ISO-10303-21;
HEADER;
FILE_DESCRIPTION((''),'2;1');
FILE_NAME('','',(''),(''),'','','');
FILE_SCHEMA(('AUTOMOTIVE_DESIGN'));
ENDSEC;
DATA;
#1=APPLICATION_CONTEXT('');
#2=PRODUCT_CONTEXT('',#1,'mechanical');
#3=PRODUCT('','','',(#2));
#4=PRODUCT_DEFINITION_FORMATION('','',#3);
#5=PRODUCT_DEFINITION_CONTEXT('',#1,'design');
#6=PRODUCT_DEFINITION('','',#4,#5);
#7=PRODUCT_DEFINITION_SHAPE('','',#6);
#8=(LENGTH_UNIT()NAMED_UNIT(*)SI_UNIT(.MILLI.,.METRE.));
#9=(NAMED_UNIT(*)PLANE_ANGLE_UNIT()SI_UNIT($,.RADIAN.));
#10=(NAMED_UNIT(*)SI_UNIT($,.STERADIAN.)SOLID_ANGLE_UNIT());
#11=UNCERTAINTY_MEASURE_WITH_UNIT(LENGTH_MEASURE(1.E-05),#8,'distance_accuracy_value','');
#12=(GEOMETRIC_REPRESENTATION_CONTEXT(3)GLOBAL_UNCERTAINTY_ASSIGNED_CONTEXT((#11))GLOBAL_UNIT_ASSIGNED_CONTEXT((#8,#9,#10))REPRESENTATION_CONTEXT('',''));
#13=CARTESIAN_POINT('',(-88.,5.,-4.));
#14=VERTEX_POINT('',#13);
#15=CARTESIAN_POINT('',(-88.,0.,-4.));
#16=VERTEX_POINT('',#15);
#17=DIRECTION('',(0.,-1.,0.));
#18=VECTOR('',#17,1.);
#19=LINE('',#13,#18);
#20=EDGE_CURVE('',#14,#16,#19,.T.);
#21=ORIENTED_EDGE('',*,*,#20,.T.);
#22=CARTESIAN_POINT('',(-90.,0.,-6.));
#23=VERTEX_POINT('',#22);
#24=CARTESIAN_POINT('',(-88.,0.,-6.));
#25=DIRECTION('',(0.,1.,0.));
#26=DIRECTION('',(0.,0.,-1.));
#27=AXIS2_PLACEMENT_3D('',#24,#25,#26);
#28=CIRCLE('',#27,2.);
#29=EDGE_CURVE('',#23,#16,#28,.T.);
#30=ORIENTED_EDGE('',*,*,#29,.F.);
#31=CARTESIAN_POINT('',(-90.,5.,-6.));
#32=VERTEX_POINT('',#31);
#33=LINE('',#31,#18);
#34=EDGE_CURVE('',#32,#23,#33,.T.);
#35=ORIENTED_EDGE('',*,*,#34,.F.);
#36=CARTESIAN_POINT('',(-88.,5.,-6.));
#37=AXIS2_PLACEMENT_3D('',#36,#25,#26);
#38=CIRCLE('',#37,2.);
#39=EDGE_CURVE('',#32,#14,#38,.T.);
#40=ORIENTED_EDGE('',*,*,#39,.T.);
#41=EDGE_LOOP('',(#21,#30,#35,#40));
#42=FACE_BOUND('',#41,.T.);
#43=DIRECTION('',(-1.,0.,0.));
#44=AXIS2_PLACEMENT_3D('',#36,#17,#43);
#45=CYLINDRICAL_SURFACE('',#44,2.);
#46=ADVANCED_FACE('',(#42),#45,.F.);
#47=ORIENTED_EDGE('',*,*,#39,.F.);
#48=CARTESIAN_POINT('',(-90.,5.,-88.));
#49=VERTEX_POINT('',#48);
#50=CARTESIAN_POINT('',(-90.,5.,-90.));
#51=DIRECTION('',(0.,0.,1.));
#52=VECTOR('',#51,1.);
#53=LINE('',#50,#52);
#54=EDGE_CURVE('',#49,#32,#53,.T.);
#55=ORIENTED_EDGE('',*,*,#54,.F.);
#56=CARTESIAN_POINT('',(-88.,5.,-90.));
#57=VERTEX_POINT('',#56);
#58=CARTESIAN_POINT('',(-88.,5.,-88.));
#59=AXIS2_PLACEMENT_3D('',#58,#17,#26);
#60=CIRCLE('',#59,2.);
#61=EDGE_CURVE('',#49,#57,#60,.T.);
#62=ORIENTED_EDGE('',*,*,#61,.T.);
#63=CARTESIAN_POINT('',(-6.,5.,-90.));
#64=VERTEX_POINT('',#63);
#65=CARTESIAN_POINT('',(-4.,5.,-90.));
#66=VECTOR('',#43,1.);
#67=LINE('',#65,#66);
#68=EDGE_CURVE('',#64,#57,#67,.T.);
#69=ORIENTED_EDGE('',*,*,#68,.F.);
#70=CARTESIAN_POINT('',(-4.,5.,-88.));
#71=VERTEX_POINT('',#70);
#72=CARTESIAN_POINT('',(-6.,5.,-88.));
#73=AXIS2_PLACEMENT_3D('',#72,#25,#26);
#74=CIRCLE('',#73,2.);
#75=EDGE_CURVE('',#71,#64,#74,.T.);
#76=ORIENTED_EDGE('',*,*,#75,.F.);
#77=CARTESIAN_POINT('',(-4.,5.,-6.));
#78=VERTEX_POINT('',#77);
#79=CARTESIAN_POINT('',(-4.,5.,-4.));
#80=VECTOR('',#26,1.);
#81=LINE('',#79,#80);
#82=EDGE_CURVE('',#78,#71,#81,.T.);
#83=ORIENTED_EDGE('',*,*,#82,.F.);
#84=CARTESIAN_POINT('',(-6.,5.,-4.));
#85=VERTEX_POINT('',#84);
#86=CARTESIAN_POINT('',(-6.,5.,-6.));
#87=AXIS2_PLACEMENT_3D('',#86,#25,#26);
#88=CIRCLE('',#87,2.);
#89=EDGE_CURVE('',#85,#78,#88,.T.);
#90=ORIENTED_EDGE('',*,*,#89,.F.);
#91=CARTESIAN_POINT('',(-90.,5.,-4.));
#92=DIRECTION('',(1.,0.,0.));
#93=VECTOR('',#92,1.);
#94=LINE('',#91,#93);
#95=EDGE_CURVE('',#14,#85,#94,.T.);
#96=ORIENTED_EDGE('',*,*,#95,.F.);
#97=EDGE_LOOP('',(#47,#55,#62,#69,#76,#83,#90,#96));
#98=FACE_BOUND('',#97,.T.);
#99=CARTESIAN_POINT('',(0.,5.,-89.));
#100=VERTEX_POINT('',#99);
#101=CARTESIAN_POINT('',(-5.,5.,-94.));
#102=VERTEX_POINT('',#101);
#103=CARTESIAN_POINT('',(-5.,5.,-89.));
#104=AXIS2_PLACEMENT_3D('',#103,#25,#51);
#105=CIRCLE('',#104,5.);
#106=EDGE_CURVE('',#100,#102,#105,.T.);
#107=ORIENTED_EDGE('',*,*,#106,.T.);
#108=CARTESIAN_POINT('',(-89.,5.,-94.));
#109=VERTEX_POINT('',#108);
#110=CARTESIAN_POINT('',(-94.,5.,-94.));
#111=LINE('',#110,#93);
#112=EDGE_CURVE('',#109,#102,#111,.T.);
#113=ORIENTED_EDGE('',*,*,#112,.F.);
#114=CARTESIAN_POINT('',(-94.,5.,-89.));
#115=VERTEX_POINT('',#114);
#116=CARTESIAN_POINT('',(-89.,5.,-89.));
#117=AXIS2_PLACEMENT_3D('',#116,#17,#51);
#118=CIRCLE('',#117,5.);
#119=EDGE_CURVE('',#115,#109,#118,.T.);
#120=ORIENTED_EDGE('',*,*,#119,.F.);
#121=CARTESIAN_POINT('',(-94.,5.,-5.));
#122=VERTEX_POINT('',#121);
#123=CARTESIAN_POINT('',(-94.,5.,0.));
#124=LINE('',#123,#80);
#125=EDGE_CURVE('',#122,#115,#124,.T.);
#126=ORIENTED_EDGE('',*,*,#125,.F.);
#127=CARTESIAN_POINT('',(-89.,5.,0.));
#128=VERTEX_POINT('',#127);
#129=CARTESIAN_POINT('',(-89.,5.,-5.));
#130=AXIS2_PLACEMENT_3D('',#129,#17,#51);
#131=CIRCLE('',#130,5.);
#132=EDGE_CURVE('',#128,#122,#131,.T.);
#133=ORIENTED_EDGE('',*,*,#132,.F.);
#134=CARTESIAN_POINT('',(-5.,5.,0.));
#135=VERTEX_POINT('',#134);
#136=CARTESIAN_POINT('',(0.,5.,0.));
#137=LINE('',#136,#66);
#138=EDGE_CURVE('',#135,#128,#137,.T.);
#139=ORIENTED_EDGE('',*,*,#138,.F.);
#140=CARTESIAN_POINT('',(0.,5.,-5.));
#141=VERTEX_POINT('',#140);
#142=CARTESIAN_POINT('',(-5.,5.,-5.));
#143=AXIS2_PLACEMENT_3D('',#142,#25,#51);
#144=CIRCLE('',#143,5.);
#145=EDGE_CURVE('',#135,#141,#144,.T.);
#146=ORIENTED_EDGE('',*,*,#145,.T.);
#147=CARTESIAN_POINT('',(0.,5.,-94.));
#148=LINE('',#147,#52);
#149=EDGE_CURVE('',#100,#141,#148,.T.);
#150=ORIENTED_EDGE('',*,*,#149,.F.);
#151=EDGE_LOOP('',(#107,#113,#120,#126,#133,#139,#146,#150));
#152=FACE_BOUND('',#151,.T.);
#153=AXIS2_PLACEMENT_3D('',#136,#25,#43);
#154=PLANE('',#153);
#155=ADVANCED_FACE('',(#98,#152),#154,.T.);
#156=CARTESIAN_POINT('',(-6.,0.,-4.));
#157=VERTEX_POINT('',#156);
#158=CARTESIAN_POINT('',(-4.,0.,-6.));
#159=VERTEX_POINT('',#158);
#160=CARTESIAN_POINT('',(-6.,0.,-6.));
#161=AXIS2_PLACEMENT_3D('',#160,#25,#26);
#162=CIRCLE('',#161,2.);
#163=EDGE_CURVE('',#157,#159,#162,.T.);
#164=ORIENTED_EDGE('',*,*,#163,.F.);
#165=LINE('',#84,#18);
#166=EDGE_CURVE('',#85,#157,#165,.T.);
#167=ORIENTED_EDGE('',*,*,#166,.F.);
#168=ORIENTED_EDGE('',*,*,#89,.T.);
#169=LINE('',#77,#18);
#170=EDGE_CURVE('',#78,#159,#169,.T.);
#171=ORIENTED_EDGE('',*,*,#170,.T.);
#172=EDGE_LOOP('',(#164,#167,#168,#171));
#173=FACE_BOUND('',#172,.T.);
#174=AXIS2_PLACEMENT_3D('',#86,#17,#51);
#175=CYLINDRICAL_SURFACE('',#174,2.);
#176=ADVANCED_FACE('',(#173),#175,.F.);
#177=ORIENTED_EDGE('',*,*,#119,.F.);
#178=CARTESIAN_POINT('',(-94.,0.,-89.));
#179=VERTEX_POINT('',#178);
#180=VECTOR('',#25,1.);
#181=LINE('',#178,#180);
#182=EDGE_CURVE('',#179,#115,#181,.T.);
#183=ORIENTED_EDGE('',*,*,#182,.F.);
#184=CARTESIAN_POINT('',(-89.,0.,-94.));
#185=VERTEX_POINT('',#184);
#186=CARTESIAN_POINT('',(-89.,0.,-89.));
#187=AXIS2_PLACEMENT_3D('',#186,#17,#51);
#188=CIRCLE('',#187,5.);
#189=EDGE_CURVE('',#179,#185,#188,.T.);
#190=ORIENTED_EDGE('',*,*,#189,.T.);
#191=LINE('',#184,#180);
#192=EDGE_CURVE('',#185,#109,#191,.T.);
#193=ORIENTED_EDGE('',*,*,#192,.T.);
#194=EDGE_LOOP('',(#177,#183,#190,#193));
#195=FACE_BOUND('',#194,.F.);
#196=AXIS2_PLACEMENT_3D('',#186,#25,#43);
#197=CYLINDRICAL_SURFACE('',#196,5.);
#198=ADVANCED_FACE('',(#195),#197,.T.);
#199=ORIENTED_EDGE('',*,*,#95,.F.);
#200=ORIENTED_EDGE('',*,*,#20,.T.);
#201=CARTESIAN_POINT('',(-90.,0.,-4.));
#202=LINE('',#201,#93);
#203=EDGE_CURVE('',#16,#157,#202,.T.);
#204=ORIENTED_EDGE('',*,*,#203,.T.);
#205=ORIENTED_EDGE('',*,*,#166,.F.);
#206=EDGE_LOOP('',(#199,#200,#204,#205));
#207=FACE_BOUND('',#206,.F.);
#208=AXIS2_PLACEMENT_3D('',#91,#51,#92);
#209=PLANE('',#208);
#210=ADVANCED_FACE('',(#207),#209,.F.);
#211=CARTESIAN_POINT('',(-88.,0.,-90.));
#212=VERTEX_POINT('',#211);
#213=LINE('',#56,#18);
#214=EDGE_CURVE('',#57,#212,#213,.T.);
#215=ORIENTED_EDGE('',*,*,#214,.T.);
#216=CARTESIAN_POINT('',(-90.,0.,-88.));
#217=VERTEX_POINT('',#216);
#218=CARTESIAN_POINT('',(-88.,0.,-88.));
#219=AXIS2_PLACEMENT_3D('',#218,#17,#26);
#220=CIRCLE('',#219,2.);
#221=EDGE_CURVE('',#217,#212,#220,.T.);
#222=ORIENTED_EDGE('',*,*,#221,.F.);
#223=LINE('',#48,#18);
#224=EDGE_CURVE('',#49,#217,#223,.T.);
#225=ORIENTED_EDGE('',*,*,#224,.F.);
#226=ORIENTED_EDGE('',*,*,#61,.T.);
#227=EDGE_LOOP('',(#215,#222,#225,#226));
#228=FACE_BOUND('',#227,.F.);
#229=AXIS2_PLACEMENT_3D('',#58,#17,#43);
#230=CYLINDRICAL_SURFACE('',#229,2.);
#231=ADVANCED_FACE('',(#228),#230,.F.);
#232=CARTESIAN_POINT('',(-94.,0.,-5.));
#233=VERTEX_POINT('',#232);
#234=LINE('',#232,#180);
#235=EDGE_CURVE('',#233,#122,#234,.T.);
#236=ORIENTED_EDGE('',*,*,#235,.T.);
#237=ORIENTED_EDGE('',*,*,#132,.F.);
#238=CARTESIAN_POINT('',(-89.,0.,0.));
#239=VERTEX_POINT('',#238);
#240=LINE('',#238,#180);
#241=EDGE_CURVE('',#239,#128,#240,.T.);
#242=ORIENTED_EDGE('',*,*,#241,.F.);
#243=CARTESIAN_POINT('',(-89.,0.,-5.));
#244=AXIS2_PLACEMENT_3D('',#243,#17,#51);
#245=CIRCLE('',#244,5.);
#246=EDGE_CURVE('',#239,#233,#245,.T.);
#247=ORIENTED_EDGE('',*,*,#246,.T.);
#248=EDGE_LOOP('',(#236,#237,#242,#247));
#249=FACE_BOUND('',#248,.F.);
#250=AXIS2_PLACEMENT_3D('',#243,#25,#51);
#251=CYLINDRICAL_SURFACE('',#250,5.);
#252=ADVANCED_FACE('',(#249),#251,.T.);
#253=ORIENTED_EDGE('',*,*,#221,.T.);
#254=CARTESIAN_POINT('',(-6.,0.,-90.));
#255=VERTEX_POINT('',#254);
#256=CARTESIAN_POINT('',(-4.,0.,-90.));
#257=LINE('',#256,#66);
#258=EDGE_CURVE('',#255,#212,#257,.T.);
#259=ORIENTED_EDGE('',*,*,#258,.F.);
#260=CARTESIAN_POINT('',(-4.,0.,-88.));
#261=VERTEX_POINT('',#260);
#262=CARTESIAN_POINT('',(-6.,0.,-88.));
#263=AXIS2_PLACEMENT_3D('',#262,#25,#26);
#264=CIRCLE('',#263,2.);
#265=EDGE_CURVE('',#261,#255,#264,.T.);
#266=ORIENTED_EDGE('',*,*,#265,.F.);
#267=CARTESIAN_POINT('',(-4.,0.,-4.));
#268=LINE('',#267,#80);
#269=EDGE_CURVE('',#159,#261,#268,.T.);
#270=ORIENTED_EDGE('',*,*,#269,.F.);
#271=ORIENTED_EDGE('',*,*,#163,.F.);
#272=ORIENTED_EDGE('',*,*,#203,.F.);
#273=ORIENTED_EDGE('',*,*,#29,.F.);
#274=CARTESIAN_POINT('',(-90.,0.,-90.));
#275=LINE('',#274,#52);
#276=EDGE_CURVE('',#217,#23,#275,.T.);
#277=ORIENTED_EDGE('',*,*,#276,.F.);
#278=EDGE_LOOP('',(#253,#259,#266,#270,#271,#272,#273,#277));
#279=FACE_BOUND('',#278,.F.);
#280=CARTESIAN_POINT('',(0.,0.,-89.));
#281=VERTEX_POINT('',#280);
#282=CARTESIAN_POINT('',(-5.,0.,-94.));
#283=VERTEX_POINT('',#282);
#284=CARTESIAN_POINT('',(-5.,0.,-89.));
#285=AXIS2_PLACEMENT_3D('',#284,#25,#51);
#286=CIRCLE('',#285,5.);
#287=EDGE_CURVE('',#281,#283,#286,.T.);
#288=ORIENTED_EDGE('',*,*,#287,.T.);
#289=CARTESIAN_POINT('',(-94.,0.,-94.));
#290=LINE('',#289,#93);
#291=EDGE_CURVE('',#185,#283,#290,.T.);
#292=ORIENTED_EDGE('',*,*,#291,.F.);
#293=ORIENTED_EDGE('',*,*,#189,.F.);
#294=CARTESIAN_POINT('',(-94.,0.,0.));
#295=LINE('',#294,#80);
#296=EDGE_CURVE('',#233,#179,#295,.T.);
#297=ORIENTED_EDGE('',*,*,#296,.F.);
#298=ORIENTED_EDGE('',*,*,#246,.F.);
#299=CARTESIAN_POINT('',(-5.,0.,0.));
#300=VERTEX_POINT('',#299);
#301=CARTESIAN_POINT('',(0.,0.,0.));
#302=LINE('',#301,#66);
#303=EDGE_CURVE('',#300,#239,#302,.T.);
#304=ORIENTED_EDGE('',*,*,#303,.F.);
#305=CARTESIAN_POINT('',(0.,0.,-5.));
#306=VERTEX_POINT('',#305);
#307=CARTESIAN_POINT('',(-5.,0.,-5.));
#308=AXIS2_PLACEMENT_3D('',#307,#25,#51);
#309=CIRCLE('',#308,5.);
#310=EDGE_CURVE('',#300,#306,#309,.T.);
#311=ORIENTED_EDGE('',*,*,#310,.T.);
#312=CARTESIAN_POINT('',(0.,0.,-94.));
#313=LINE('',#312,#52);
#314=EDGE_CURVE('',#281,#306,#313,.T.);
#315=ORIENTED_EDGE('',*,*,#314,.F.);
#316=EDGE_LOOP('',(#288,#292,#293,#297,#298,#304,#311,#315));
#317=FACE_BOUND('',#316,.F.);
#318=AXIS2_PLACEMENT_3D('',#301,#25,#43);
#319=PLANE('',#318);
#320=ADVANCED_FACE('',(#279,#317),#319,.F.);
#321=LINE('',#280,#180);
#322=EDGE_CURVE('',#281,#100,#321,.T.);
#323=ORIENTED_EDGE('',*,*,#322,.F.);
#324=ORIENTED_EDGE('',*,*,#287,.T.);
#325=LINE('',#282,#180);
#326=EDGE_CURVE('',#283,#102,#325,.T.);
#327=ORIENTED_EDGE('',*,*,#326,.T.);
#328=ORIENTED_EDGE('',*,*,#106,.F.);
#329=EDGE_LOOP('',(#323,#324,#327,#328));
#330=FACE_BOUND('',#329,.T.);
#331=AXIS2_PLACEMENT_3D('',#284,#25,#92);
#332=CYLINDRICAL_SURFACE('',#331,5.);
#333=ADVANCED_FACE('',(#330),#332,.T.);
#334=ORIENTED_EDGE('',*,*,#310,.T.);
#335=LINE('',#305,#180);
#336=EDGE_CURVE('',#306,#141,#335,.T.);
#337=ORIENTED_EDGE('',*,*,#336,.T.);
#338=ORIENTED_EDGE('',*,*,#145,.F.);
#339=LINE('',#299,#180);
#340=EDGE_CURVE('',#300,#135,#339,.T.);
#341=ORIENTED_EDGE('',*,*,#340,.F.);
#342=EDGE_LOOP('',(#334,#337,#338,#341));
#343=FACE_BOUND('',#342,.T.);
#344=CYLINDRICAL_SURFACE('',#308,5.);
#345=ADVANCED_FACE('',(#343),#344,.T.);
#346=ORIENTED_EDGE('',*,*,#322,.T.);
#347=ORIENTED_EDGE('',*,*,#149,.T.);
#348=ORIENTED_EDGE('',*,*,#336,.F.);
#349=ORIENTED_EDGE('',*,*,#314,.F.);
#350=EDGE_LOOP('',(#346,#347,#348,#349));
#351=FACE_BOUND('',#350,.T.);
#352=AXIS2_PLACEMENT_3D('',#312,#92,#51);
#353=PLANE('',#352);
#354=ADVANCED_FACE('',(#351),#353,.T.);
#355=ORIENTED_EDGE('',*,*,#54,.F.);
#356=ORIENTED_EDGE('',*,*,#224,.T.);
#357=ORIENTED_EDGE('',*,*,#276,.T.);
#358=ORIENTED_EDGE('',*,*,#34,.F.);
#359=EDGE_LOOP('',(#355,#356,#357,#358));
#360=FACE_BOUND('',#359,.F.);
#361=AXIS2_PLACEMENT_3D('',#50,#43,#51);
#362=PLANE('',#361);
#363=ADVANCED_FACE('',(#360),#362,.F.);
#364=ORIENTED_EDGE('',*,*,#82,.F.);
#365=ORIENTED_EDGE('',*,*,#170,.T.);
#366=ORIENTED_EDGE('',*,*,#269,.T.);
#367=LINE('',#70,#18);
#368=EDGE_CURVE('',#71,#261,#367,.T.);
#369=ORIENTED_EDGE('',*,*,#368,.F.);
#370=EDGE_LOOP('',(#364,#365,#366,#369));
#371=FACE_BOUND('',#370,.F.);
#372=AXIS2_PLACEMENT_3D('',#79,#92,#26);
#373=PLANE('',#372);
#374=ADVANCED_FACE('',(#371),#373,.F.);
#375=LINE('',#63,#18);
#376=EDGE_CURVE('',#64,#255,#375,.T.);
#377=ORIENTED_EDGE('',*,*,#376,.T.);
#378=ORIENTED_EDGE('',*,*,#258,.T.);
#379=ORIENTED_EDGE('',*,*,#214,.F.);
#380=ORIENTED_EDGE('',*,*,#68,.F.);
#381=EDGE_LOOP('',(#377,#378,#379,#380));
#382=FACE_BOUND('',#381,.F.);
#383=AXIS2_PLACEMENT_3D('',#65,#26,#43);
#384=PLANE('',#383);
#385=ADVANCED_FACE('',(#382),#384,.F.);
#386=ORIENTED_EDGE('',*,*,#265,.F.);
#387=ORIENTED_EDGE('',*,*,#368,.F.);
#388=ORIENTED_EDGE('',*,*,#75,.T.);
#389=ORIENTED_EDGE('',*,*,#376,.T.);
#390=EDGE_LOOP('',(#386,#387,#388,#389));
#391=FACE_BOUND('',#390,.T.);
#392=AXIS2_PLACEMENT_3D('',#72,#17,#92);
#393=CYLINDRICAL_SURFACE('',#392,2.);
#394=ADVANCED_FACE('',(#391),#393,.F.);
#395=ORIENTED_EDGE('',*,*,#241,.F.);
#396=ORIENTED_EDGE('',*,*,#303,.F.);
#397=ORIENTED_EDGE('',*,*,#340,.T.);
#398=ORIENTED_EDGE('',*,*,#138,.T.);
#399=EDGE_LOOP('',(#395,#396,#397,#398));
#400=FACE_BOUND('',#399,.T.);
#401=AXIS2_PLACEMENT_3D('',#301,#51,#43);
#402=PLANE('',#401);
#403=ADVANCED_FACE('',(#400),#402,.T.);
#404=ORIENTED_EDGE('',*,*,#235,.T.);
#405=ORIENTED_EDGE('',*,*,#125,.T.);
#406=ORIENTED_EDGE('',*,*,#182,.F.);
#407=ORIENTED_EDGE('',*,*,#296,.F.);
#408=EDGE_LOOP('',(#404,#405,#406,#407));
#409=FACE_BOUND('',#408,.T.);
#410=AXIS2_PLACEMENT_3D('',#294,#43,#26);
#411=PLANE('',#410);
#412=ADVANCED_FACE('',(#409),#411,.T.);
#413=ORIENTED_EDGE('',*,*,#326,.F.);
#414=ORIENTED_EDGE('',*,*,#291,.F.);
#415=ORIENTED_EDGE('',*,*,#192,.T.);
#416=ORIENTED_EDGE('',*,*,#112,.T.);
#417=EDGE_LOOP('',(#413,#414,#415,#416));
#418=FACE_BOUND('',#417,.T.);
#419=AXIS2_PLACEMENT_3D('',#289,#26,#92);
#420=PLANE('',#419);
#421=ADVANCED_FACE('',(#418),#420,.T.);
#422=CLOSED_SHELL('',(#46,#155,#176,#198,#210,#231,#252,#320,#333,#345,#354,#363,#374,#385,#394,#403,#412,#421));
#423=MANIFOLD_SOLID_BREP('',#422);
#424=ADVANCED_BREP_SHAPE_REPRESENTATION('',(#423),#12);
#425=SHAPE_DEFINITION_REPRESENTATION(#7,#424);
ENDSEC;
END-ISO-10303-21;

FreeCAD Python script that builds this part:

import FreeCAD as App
import Part
import Sketcher
Q = App.Units.Quantity


def edges_at(feature, points):
    """Names of the edges that pass closest to the given points."""
    edges = feature.Shape.Edges
    near = lambda p: min(range(len(edges)), key=lambda i: edges[i].distToShape(Part.Vertex(*p))[0])
    return sorted({f"Edge{near(p) + 1}" for p in points})

doc = App.newDocument("Part")
body = doc.addObject("PartDesign::Body", "Body")

# Sketch on XZ plane
sketch1 = body.newObject("Sketcher::SketchObject", "Sketch")
sketch1.AttachmentSupport = (doc.getObject("XZ_Plane"), [""])
sketch1.MapMode = "FlatFace"
sketch1.addGeometry([
    Part.LineSegment(App.Vector(-94, 0, 0), App.Vector(0, 0, 0)),
    Part.LineSegment(App.Vector(0, 0, 0), App.Vector(0, -94, 0)),
    Part.LineSegment(App.Vector(0, -94, 0), App.Vector(-94, -94, 0)),
    Part.LineSegment(App.Vector(-94, -94, 0), App.Vector(-94, 0, 0)),
], False)
sketch1.addConstraint([
    Sketcher.Constraint("Coincident", 0, 2, 1, 1),
    Sketcher.Constraint("Coincident", 1, 2, 2, 1),
    Sketcher.Constraint("Coincident", 2, 2, 3, 1),
    Sketcher.Constraint("Coincident", 3, 2, 0, 1),
    Sketcher.Constraint("Horizontal", 0),
    Sketcher.Constraint("Vertical", 1),
    Sketcher.Constraint("Horizontal", 2),
    Sketcher.Constraint("Vertical", 3),
    Sketcher.Constraint("Coincident", 0, 2, -1, 1),
    Sketcher.Constraint("Equal", 2, 1),
    Sketcher.Constraint("DistanceX", 0, 1, 0, 2, Q("94 mm")),
])
pad1 = body.newObject("PartDesign::Pad", "Pad")
pad1.Profile = sketch1
pad1.Length = 5
pad1.Reversed = True

# Sketch on XZ plane
sketch2 = body.newObject("Sketcher::SketchObject", "Sketch001")
sketch2.AttachmentSupport = (doc.getObject("XZ_Plane"), [""])
sketch2.MapMode = "FlatFace"
sketch2.AttachmentOffset = App.Placement(App.Vector(0, 0, -5), App.Rotation())
sketch2.addGeometry([
    Part.LineSegment(App.Vector(-90, -90, 0), App.Vector(-90, -4, 0)),
    Part.LineSegment(App.Vector(-90, -4, 0), App.Vector(-4, -4, 0)),
    Part.LineSegment(App.Vector(-4, -4, 0), App.Vector(-4, -90, 0)),
    Part.LineSegment(App.Vector(-4, -90, 0), App.Vector(-90, -90, 0)),
], False)
sketch2.addConstraint([
    Sketcher.Constraint("Coincident", 0, 2, 1, 1),
    Sketcher.Constraint("Coincident", 1, 2, 2, 1),
    Sketcher.Constraint("Coincident", 2, 2, 3, 1),
    Sketcher.Constraint("Coincident", 3, 2, 0, 1),
    Sketcher.Constraint("Vertical", 0),
    Sketcher.Constraint("Horizontal", 1),
    Sketcher.Constraint("Vertical", 2),
    Sketcher.Constraint("Horizontal", 3),
    Sketcher.Constraint("Equal", 3, 0),
    Sketcher.Constraint("DistanceY", 0, 2, -1, 1, Q("4 mm")),
    Sketcher.Constraint("DistanceX", 1, 2, -1, 1, Q("4 mm")),
    Sketcher.Constraint("DistanceX", 1, 1, 1, 2, Q("86 mm")),
])
pocket1 = body.newObject("PartDesign::Pocket", "Pocket")
pocket1.Profile = sketch2
pocket1.Length = 5
pocket1.Reversed = True
doc.recompute()

fillet = body.newObject("PartDesign::Fillet", "Fillet")
fillet.Base = (pocket1, edges_at(pocket1, [
    (-94, 2.5, -94),
    (0, 2.5, 0),
    (0, 2.5, -94),
    (-94, 2.5, 0),
]))
fillet.Radius = 5
doc.recompute()

fillet2 = body.newObject("PartDesign::Fillet", "Fillet001")
fillet2.Base = (fillet, edges_at(fillet, [
    (-90, 2.5, -90),
    (-4, 2.5, -90),
    (-4, 2.5, -4),
    (-90, 2.5, -4),
]))
fillet2.Radius = 2

doc.recompute()
